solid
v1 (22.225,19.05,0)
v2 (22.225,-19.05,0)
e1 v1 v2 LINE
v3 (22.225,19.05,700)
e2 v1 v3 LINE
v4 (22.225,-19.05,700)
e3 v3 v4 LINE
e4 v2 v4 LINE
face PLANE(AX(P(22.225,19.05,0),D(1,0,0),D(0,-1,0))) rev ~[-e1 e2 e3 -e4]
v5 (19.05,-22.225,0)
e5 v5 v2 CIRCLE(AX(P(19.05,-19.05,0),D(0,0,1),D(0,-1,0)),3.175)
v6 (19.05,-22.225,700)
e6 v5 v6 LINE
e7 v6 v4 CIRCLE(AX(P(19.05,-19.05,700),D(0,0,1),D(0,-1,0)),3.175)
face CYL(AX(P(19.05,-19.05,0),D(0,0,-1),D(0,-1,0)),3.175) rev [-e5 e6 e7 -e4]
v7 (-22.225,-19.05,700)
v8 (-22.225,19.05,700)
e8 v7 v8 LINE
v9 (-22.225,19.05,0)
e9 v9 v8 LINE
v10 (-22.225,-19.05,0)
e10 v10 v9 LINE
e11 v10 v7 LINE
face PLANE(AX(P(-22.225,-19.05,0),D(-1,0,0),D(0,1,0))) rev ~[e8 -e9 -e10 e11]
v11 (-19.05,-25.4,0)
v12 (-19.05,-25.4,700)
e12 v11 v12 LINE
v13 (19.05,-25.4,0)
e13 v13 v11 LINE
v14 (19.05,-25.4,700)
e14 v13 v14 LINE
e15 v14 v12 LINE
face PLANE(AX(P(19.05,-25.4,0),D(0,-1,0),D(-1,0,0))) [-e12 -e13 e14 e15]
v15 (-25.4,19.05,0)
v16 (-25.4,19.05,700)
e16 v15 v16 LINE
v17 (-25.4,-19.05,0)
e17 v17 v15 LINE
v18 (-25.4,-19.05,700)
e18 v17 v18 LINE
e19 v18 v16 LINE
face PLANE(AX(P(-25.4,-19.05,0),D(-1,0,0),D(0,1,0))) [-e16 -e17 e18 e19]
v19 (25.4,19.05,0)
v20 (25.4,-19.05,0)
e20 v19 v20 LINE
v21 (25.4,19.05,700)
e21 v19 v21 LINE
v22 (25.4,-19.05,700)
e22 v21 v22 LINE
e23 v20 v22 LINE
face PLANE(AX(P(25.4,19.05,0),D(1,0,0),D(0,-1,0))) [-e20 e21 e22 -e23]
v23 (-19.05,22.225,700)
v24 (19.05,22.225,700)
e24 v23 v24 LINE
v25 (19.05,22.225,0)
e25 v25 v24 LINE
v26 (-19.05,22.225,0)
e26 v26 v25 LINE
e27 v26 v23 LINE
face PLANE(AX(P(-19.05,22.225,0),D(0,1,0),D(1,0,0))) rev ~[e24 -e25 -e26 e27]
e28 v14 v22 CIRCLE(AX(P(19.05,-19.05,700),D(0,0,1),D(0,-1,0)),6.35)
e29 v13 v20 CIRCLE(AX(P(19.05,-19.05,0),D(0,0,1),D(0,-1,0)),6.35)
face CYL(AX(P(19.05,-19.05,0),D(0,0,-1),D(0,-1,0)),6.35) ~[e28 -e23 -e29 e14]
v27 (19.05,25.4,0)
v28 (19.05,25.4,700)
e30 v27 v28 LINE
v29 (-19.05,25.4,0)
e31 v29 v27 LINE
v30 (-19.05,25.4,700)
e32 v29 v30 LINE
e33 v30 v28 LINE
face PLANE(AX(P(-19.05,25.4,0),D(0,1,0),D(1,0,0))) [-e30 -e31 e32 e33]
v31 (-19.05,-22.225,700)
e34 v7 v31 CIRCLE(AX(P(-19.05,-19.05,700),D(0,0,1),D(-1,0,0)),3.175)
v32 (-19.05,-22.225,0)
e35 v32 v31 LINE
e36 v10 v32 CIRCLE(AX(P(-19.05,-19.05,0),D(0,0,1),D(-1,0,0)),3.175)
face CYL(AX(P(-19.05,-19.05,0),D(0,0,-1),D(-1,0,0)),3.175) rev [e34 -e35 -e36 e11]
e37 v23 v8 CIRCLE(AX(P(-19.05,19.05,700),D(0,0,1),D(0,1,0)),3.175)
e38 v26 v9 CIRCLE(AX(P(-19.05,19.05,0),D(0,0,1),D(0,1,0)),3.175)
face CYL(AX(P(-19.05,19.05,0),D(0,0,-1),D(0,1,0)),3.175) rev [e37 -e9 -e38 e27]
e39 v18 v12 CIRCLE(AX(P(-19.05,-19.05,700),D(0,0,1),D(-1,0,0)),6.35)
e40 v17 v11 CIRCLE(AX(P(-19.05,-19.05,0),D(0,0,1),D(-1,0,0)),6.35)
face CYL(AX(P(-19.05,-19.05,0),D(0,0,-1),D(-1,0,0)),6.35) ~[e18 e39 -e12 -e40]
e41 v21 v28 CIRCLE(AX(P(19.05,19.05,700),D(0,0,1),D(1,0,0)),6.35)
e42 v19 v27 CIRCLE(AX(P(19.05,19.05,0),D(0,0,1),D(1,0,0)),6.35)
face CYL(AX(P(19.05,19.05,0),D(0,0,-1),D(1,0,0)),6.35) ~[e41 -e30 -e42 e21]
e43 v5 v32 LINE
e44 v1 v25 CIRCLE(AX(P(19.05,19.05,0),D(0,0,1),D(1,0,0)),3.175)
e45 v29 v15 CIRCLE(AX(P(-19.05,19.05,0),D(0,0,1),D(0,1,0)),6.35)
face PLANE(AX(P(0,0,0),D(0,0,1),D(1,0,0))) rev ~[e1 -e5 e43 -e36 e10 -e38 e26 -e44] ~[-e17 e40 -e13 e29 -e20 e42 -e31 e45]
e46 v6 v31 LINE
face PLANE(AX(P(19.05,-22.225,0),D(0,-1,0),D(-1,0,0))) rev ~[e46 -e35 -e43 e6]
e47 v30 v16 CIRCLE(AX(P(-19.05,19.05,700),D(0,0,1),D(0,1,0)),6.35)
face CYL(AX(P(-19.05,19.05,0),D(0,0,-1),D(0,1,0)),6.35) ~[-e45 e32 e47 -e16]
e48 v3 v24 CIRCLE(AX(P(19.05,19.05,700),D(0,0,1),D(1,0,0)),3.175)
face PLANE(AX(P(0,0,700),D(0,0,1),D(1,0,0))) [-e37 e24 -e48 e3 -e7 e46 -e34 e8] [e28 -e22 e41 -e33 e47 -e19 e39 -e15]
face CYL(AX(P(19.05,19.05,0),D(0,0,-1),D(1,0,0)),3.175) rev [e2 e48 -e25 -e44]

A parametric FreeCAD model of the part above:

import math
import FreeCAD as App
import Part
import Sketcher
Q = App.Units.Quantity

doc = App.newDocument("Part")
body = doc.addObject("PartDesign::Body", "Body")

# Sketch on XY plane
sketch1 = doc.addObject("Sketcher::SketchObject", "Sketch")
body.addObject(sketch1)
sketch1.AttachmentSupport = (doc.XY_Plane, [""])
sketch1.MapMode = "FlatFace"
sketch1.addGeometry(Part.LineSegment(App.Vector(-25.4, 19.1, 0), App.Vector(-25.4, -19.1, 0)), False)
sketch1.addGeometry(Part.ArcOfCircle(Part.Circle(App.Vector(-19.1, -19.1, 0), App.Vector(0, 0, 1), 6.3), math.radians(180), math.radians(270)), False)
sketch1.addGeometry(Part.LineSegment(App.Vector(-19.1, -25.4, 0), App.Vector(19.1, -25.4, 0)), False)
sketch1.addGeometry(Part.ArcOfCircle(Part.Circle(App.Vector(19.1, -19.1, 0), App.Vector(0, 0, 1), 6.3), math.radians(-90), math.radians(0)), False)
sketch1.addGeometry(Part.LineSegment(App.Vector(25.4, -19.1, 0), App.Vector(25.4, 19.1, 0)), False)
sketch1.addGeometry(Part.ArcOfCircle(Part.Circle(App.Vector(19.1, 19.1, 0), App.Vector(0, 0, 1), 6.3), math.radians(0), math.radians(90)), False)
sketch1.addGeometry(Part.LineSegment(App.Vector(19.1, 25.4, 0), App.Vector(-19.1, 25.4, 0)), False)
sketch1.addGeometry(Part.ArcOfCircle(Part.Circle(App.Vector(-19.1, 19.1, 0), App.Vector(0, 0, 1), 6.3), math.radians(90), math.radians(180)), False)
sketch1.addGeometry(Part.ArcOfCircle(Part.Circle(App.Vector(-19.1, 19.1, 0), App.Vector(0, 0, 1), 3.2), math.radians(90), math.radians(180)), False)
sketch1.addGeometry(Part.LineSegment(App.Vector(-19.1, 22.2, 0), App.Vector(19.1, 22.2, 0)), False)
sketch1.addGeometry(Part.ArcOfCircle(Part.Circle(App.Vector(19.1, 19.1, 0), App.Vector(0, 0, 1), 3.2), math.radians(0), math.radians(90)), False)
sketch1.addGeometry(Part.LineSegment(App.Vector(22.2, 19.1, 0), App.Vector(22.2, -19.1, 0)), False)
sketch1.addGeometry(Part.ArcOfCircle(Part.Circle(App.Vector(19.1, -19.1, 0), App.Vector(0, 0, 1), 3.2), math.radians(-90), math.radians(0)), False)
sketch1.addGeometry(Part.LineSegment(App.Vector(19.1, -22.2, 0), App.Vector(-19.1, -22.2, 0)), False)
sketch1.addGeometry(Part.ArcOfCircle(Part.Circle(App.Vector(-19.1, -19.1, 0), App.Vector(0, 0, 1), 3.2), math.radians(180), math.radians(270)), False)
sketch1.addGeometry(Part.LineSegment(App.Vector(-22.2, -19.1, 0), App.Vector(-22.2, 19.1, 0)), False)
sketch1.addConstraint(Sketcher.Constraint("Tangent", 0, 2, 1, 1))
sketch1.addConstraint(Sketcher.Constraint("Tangent", 1, 2, 2, 1))
sketch1.addConstraint(Sketcher.Constraint("Tangent", 2, 2, 3, 1))
sketch1.addConstraint(Sketcher.Constraint("Tangent", 3, 2, 4, 1))
sketch1.addConstraint(Sketcher.Constraint("Tangent", 4, 2, 5, 1))
sketch1.addConstraint(Sketcher.Constraint("Tangent", 5, 2, 6, 1))
sketch1.addConstraint(Sketcher.Constraint("Tangent", 6, 2, 7, 1))
sketch1.addConstraint(Sketcher.Constraint("Tangent", 7, 2, 0, 1))
sketch1.addConstraint(Sketcher.Constraint("Tangent", 8, 1, 9, 1))
sketch1.addConstraint(Sketcher.Constraint("Tangent", 9, 2, 10, 2))
sketch1.addConstraint(Sketcher.Constraint("Tangent", 10, 1, 11, 1))
sketch1.addConstraint(Sketcher.Constraint("Tangent", 11, 2, 12, 2))
sketch1.addConstraint(Sketcher.Constraint("Tangent", 12, 1, 13, 1))
sketch1.addConstraint(Sketcher.Constraint("Tangent", 13, 2, 14, 2))
sketch1.addConstraint(Sketcher.Constraint("Tangent", 14, 1, 15, 1))
sketch1.addConstraint(Sketcher.Constraint("Tangent", 15, 2, 8, 2))
sketch1.addConstraint(Sketcher.Constraint("Vertical", 0))
sketch1.addConstraint(Sketcher.Constraint("Horizontal", 2))
sketch1.addConstraint(Sketcher.Constraint("Vertical", 4))
sketch1.addConstraint(Sketcher.Constraint("Horizontal", 6))
sketch1.addConstraint(Sketcher.Constraint("Horizontal", 9))
sketch1.addConstraint(Sketcher.Constraint("Vertical", 11))
sketch1.addConstraint(Sketcher.Constraint("Horizontal", 13))
sketch1.addConstraint(Sketcher.Constraint("Vertical", 15))
sketch1.addConstraint(Sketcher.Constraint("Coincident", 8, 3, 7, 3))
sketch1.addConstraint(Sketcher.Constraint("Coincident", 10, 3, 5, 3))
sketch1.addConstraint(Sketcher.Constraint("Coincident", 12, 3, 3, 3))
sketch1.addConstraint(Sketcher.Constraint("Equal", 1, 3))
sketch1.addConstraint(Sketcher.Constraint("Equal", 3, 5))
sketch1.addConstraint(Sketcher.Constraint("Equal", 5, 7))
sketch1.addConstraint(Sketcher.Constraint("Equal", 12, 14))
sketch1.addConstraint(Sketcher.Constraint("Symmetric", 1, 3, 5, 3, -1, 1))
sketch1.addConstraint(Sketcher.Constraint("Equal", 13, 0))
sketch1.addConstraint(Sketcher.Constraint("Radius", 1, Q("0.25 in")))
sketch1.addConstraint(Sketcher.Constraint("DistanceX", 0, 2, -1, 1, Q("1 in")))
sketch1.addConstraint(Sketcher.Constraint("Radius", 8, Q("0.125 in")))
pad1 = doc.addObject("PartDesign::Pad", "Pad")
body.addObject(pad1)
pad1.Profile = sketch1
pad1.Length = 700

doc.recompute()
